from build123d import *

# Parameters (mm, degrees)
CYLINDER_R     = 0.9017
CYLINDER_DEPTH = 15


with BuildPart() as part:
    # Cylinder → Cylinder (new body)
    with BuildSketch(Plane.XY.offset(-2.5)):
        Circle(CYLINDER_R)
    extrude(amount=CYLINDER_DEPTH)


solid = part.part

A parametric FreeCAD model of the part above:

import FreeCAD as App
import Part
import Sketcher

V = App.Vector

doc = App.newDocument("Part")
body = doc.addObject("PartDesign::Body", "Body")

# Sketch on XY plane
sketch1 = body.newObject("Sketcher::SketchObject", "Sketch")
sketch1.AttachmentSupport = (doc.getObject("XY_Plane"), [""])
sketch1.MapMode = "FlatFace"
sketch1.AttachmentOffset = App.Placement(V(0, 0, -2.5), App.Rotation())
sketch1.addGeometry(Part.Circle(V(0, 0, 0), V(0, 0, 1), 0.9017), False)
sketch1.addConstraint(Sketcher.Constraint("Coincident", 0, 3, -1, 1))
sketch1.addConstraint(Sketcher.Constraint("Diameter", 0, 1.8034))
pad1 = body.newObject("PartDesign::Pad", "Pad")
pad1.Profile = sketch1
pad1.Length = 15

doc.recompute()
